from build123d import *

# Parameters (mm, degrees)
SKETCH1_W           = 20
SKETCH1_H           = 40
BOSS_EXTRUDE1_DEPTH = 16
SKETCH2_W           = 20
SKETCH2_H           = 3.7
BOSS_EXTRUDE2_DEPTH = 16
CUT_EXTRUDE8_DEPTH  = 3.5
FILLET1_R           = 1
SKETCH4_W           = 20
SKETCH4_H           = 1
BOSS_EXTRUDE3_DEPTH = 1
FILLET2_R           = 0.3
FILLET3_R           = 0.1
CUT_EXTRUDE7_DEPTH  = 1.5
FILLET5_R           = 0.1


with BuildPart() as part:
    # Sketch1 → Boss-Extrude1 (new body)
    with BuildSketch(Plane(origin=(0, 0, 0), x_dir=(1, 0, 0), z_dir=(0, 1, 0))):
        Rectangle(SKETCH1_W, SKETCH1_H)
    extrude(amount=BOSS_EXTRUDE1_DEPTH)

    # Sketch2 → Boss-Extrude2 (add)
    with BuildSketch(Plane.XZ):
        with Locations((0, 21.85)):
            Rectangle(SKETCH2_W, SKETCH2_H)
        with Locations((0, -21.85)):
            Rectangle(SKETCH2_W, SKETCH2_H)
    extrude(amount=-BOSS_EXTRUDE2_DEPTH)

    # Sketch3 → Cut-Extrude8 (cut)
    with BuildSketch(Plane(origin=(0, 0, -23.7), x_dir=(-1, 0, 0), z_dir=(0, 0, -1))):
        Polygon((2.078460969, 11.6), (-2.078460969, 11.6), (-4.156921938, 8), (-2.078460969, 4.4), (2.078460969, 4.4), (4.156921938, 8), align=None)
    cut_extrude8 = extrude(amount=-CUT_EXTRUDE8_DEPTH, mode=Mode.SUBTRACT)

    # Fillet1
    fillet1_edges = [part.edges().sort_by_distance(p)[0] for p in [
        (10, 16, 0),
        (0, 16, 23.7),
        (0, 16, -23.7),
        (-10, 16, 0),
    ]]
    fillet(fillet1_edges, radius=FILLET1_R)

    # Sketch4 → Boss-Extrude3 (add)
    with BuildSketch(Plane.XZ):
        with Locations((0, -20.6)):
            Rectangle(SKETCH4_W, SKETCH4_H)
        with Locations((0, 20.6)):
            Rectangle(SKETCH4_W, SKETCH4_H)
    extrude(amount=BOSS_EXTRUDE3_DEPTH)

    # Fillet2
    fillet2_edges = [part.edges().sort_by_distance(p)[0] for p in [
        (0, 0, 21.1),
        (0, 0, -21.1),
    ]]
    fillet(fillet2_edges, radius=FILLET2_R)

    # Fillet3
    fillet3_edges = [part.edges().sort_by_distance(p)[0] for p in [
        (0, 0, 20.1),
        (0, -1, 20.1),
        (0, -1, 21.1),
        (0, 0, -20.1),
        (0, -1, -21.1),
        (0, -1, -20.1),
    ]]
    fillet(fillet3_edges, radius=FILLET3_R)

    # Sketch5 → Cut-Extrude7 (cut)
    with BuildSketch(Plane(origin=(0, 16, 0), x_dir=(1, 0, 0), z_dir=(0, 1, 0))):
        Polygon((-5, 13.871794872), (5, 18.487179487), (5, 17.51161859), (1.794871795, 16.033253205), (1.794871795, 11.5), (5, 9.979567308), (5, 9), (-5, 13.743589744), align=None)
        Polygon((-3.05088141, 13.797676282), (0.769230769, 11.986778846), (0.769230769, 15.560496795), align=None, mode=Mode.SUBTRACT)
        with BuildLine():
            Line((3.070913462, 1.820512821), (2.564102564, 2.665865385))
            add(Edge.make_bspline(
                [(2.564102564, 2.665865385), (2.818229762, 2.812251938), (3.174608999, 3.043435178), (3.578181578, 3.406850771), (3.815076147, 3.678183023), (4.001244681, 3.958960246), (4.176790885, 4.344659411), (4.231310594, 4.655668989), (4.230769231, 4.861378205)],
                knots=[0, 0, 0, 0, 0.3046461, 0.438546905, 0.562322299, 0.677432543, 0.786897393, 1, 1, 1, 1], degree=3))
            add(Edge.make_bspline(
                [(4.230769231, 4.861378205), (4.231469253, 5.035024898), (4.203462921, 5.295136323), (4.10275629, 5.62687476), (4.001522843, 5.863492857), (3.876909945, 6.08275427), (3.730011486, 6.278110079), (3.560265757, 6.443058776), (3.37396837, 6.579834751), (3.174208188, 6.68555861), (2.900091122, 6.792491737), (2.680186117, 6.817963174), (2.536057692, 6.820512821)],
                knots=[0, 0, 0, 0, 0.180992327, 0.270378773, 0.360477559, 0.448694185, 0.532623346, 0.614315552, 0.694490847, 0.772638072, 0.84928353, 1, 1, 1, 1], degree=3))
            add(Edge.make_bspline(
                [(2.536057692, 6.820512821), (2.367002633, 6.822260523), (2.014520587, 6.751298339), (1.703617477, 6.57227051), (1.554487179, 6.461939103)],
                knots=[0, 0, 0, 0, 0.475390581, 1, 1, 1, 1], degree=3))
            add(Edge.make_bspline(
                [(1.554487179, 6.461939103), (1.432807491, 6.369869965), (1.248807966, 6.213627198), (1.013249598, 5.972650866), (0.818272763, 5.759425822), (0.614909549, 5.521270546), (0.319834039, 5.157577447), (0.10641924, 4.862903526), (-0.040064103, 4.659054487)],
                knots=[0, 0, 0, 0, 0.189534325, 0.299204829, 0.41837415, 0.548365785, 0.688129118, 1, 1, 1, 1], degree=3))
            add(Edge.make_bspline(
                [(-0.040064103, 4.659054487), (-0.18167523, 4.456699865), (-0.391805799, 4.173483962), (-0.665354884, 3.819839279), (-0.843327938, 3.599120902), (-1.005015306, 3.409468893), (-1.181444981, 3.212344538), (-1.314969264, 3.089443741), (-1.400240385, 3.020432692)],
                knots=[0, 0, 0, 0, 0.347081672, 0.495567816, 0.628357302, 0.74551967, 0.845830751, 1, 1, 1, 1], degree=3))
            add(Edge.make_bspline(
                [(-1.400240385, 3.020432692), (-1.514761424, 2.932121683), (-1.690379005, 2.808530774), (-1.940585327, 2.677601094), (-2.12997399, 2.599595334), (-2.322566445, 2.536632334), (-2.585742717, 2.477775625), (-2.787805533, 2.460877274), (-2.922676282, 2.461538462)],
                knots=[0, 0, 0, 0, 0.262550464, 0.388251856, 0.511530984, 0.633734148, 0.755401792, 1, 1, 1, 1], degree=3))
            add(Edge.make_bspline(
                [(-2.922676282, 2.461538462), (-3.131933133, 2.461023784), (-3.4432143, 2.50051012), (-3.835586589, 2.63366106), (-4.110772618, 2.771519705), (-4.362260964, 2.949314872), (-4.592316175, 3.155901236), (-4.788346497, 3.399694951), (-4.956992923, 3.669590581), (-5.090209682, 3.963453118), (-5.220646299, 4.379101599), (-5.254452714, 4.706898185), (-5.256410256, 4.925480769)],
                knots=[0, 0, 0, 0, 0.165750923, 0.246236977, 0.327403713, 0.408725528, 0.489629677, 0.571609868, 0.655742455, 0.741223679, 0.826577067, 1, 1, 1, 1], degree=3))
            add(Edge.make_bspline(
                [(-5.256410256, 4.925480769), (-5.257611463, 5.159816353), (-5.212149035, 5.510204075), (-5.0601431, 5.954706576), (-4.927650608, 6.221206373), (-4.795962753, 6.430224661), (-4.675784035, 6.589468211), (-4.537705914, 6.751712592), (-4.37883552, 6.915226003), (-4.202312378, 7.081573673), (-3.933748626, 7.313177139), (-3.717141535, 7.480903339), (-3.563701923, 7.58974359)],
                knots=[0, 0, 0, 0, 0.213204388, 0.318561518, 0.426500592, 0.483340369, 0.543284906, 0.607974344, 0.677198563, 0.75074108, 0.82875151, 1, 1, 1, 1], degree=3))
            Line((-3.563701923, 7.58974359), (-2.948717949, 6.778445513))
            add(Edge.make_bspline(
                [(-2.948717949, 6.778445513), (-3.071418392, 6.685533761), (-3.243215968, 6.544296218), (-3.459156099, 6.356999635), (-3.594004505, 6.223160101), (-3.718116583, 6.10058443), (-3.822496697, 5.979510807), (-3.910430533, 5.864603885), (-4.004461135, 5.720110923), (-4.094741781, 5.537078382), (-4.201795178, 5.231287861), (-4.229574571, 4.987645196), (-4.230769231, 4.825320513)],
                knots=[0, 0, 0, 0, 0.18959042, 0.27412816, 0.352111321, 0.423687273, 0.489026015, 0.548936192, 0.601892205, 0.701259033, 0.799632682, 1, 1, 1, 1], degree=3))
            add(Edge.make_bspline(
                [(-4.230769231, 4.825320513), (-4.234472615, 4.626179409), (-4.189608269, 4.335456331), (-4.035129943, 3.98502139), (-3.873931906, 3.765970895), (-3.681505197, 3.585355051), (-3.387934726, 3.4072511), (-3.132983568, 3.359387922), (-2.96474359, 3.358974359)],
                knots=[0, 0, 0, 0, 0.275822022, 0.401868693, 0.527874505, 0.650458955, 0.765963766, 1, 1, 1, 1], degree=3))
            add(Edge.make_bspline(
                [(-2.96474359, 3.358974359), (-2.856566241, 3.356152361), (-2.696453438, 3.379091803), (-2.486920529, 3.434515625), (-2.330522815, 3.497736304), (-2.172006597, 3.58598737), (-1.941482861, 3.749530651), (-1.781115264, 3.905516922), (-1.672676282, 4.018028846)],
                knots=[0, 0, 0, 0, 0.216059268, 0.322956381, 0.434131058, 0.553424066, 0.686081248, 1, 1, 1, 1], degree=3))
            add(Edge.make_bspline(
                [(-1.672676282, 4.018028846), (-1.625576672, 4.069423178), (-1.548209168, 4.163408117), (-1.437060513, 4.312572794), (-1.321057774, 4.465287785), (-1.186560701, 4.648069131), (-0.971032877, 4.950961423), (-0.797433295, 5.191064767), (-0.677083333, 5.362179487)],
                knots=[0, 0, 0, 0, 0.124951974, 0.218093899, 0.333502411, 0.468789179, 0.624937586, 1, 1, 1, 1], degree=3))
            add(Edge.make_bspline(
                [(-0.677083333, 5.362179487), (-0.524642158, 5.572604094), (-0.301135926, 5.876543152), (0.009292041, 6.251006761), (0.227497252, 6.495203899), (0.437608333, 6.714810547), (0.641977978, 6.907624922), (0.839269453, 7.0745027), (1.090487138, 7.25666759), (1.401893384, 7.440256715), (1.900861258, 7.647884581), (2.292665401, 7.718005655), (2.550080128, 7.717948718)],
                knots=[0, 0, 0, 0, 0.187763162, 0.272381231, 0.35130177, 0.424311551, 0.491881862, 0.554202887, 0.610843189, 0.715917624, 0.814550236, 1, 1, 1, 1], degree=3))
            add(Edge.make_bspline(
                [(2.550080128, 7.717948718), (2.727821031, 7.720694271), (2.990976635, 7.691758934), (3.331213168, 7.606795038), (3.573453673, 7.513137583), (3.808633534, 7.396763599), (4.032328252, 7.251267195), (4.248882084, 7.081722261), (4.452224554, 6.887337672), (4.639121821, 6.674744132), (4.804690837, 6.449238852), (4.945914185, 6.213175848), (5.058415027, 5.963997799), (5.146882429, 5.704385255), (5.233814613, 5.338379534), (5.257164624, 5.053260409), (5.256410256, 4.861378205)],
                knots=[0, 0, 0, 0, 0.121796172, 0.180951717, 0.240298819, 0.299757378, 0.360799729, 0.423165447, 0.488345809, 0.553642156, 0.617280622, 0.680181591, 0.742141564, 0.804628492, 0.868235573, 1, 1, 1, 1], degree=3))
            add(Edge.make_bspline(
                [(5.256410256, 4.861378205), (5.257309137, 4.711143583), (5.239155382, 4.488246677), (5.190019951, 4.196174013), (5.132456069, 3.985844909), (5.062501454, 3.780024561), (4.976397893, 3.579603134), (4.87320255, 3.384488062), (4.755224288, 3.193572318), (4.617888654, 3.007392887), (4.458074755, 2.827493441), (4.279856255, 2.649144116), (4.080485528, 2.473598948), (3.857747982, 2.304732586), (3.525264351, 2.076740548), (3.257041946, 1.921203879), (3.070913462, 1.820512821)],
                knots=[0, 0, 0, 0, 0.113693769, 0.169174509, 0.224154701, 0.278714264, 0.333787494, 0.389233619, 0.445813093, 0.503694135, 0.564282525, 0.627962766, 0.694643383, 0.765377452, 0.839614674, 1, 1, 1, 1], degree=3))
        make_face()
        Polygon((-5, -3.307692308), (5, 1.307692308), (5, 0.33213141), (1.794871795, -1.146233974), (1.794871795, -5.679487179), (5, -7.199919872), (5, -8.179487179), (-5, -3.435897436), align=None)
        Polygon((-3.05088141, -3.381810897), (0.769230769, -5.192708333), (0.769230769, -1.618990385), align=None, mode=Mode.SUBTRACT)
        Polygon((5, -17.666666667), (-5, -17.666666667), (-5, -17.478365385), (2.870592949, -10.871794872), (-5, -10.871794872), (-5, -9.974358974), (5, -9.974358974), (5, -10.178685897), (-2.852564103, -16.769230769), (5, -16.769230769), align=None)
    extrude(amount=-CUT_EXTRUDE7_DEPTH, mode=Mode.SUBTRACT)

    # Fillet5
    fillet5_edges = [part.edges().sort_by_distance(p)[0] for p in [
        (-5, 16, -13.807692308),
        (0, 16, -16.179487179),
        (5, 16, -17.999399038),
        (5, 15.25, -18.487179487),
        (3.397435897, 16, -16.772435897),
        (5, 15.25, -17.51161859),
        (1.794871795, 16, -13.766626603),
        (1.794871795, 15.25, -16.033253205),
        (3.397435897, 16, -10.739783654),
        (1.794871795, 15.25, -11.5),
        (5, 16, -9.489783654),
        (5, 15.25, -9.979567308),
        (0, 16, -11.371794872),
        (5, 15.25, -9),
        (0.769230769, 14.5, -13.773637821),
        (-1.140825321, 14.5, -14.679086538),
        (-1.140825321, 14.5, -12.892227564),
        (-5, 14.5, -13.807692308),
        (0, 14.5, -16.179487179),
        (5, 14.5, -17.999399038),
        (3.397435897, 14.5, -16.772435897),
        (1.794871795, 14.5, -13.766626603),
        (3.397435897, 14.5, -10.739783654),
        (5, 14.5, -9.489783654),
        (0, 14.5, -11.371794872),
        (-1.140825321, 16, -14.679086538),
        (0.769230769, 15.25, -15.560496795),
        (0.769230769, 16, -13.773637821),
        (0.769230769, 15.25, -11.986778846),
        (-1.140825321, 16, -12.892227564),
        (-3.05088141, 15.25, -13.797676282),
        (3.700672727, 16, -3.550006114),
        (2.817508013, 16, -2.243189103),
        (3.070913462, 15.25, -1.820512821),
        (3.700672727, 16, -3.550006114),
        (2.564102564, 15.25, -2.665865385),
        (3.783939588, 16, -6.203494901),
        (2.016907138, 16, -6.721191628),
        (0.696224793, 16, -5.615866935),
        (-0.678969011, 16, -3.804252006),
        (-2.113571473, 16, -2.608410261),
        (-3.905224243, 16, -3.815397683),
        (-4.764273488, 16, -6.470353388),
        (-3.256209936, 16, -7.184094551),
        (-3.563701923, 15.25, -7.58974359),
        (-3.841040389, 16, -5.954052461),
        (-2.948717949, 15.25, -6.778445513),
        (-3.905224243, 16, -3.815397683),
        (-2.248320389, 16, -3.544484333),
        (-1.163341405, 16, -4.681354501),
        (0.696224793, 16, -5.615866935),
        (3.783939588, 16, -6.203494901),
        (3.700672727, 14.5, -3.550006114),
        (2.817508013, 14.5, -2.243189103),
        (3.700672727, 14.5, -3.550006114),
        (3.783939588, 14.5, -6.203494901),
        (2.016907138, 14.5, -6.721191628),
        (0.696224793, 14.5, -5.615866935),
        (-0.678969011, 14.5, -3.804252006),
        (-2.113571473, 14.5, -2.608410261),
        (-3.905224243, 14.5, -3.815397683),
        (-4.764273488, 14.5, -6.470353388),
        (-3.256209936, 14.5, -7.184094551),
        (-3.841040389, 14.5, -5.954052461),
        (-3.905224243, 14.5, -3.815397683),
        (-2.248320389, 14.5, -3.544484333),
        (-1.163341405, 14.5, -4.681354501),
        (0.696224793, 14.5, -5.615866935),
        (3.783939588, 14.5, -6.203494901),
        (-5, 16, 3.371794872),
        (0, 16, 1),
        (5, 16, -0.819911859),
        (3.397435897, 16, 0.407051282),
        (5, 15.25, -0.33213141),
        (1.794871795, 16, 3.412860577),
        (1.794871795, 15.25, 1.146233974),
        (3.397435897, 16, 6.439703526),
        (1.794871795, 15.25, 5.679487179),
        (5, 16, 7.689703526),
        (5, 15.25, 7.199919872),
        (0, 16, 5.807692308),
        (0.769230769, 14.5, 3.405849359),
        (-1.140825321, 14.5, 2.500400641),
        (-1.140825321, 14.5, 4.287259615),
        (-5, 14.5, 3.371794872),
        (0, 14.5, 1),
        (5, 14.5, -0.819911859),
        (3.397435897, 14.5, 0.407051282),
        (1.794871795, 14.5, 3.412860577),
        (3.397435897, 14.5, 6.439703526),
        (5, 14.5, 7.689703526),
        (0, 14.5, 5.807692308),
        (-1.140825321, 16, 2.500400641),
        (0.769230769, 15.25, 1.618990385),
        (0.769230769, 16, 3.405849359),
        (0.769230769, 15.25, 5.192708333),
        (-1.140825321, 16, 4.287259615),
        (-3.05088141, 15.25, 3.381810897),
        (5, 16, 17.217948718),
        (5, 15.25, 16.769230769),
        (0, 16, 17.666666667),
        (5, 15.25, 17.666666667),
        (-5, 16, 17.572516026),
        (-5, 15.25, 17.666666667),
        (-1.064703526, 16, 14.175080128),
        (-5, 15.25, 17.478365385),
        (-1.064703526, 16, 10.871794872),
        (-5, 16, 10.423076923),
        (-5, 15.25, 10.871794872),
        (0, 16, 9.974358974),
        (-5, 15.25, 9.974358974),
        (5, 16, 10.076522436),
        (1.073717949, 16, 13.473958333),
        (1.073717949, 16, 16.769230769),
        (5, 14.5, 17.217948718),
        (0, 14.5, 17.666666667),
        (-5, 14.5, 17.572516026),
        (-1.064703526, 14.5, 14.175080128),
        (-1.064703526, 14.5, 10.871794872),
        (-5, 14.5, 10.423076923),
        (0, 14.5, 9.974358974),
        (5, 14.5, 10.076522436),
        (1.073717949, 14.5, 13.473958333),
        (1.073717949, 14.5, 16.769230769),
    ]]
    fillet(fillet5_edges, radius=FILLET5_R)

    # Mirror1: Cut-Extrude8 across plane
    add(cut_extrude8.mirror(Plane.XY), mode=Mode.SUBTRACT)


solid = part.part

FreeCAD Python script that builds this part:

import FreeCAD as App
import Part
import Sketcher

V = App.Vector
Q = App.Units.Quantity


def edges_at(feature, points):
    """Names of the edges that pass closest to the given points."""
    edges = feature.Shape.Edges
    near = lambda p: min(range(len(edges)), key=lambda i: edges[i].distToShape(Part.Vertex(*p))[0])
    return sorted({f"Edge{near(p) + 1}" for p in points})


def add_polygon(sketch, points):
    """Adds a closed chain of lines whose ends are joined by coincident constraints."""
    first, n = sketch.GeometryCount, len(points)
    for a, b in zip(points, points[1:] + points[:1]):
        sketch.addGeometry(Part.LineSegment(App.Vector(*a, 0), App.Vector(*b, 0)), False)
    for i in range(n):
        sketch.addConstraint(Sketcher.Constraint("Coincident", first + i, 2, first + (i + 1) % n, 1))

doc = App.newDocument("Part")
body = doc.addObject("PartDesign::Body", "Body")

# Sketch on XZ plane
sketch1 = body.newObject("Sketcher::SketchObject", "Sketch")
sketch1.AttachmentSupport = (doc.getObject("XZ_Plane"), [""])
sketch1.MapMode = "FlatFace"
add_polygon(sketch1, [(-10, -20), (-10, 20), (10, 20), (10, -20)])  # lines 0-3
sketch1.addConstraint([
    Sketcher.Constraint("Vertical", 0),
    Sketcher.Constraint("Horizontal", 1),
    Sketcher.Constraint("Vertical", 2),
    Sketcher.Constraint("Horizontal", 3),
    Sketcher.Constraint("Symmetric", 0, 2, 2, 2, -1, 1),
    Sketcher.Constraint("DistanceX", 1, 1, 1, 2, Q("20 mm")),
    Sketcher.Constraint("DistanceY", 0, 1, 0, 2, Q("40 mm")),
])
pad1 = body.newObject("PartDesign::Pad", "Pad")
pad1.Profile = sketch1
pad1.Length = 16
pad1.Reversed = True

# Sketch on XZ plane
sketch2 = body.newObject("Sketcher::SketchObject", "Sketch001")
sketch2.AttachmentSupport = (doc.getObject("XZ_Plane"), [""])
sketch2.MapMode = "FlatFace"
add_polygon(sketch2, [(-10, 23.7), (-10, 20), (10, 20), (10, 23.7)])  # lines 0-3
add_polygon(sketch2, [(-10, -20), (-10, -23.7), (10, -23.7), (10, -20)])  # lines 4-7
sketch2.addConstraint([
    Sketcher.Constraint("Vertical", 0),
    Sketcher.Constraint("Horizontal", 1),
    Sketcher.Constraint("Vertical", 2),
    Sketcher.Constraint("Horizontal", 3),
    Sketcher.Constraint("Vertical", 4),
    Sketcher.Constraint("Horizontal", 5),
    Sketcher.Constraint("Vertical", 6),
    Sketcher.Constraint("Horizontal", 7),
    Sketcher.Constraint("Symmetric", 2, 2, 4, 2, -1, 1),
    Sketcher.Constraint("Symmetric", 0, 2, 6, 2, -1, 1),
    Sketcher.Constraint("Vertical", 3, 2, 4, 2),
    Sketcher.Constraint("DistanceX", 1, 1, 1, 2, Q("20 mm")),
    Sketcher.Constraint("DistanceY", 0, 2, 0, 1, Q("3.7 mm")),
    Sketcher.Constraint("DistanceY", -1, 1, 0, 2, Q("20 mm")),
])
pad2 = body.newObject("PartDesign::Pad", "Pad001")
pad2.Profile = sketch2
pad2.Length = 16
pad2.Reversed = True

# Sketch on XY plane
sketch3 = body.newObject("Sketcher::SketchObject", "Sketch002")
sketch3.AttachmentSupport = (doc.getObject("XY_Plane"), [""])
sketch3.MapMode = "FlatFace"
sketch3.AttachmentOffset = App.Placement(V(0, 0, -23.7), App.Rotation())
add_polygon(sketch3, [(-2.1, 11.6), (2.1, 11.6), (4.2, 8), (2.1, 4.4), (-2.1, 4.4), (-4.2, 8)])  # lines 0-5
sketch3.addConstraint([
    Sketcher.Constraint("Horizontal", 0),
    Sketcher.Constraint("Horizontal", 3),
    Sketcher.Constraint("Symmetric", 1, 2, 4, 2, -2),
    Sketcher.Constraint("Parallel", 1, 4),
    Sketcher.Constraint("Parallel", 2, 5),
    Sketcher.Constraint("Vertical", 0, 2, 2, 2),
    Sketcher.Constraint("Vertical", 3, 2, 5, 2),
    Sketcher.Constraint("Angle", 1, Q("-60 deg")),
    Sketcher.Constraint("DistanceY", -1, 1, 1, 2, Q("8 mm")),
    Sketcher.Constraint("DistanceY", -1, 1, 0, 2, Q("11.6 mm")),
    Sketcher.Constraint("DistanceX", 0, 1, 0, 2, Q("4.156922 mm")),
])
pocket1 = body.newObject("PartDesign::Pocket", "Pocket")
pocket1.Profile = sketch3
pocket1.Length = 3.5
pocket1.Reversed = True
doc.recompute()

fillet = body.newObject("PartDesign::Fillet", "Fillet")
fillet.Base = (pocket1, edges_at(pocket1, [
    (10, 16, 0),
    (0, 16, 23.7),
    (0, 16, -23.7),
    (-10, 16, 0),
]))
fillet.Radius = 1

# Sketch on XZ plane
sketch4 = body.newObject("Sketcher::SketchObject", "Sketch003")
sketch4.AttachmentSupport = (doc.getObject("XZ_Plane"), [""])
sketch4.MapMode = "FlatFace"
add_polygon(sketch4, [(-10, -20.1), (-10, -21.1), (10, -21.1), (10, -20.1)])  # lines 0-3
add_polygon(sketch4, [(-10, 21.1), (-10, 20.1), (10, 20.1), (10, 21.1)])  # lines 4-7
sketch4.addConstraint([
    Sketcher.Constraint("Vertical", 0),
    Sketcher.Constraint("Horizontal", 1),
    Sketcher.Constraint("Vertical", 2),
    Sketcher.Constraint("Horizontal", 3),
    Sketcher.Constraint("Vertical", 4),
    Sketcher.Constraint("Horizontal", 5),
    Sketcher.Constraint("Vertical", 6),
    Sketcher.Constraint("Horizontal", 7),
    Sketcher.Constraint("Symmetric", 2, 2, 4, 2, -1, 1),
    Sketcher.Constraint("Symmetric", 0, 2, 6, 2, -1, 1),
    Sketcher.Constraint("Vertical", 3, 2, 4, 2),
    Sketcher.Constraint("DistanceX", 1, 1, 1, 2, Q("20 mm")),
    Sketcher.Constraint("DistanceY", 0, 2, 0, 1, Q("1 mm")),
    Sketcher.Constraint("DistanceY", 0, 2, -1, 1, Q("21.1 mm")),
])
pad3 = body.newObject("PartDesign::Pad", "Pad002")
pad3.Profile = sketch4
pad3.Length = 1
doc.recompute()

fillet2 = body.newObject("PartDesign::Fillet", "Fillet001")
fillet2.Base = (pad3, edges_at(pad3, [(0, 0, 21.1), (0, 0, -21.1)]))
fillet2.Radius = 0.3
doc.recompute()

fillet3 = body.newObject("PartDesign::Fillet", "Fillet002")
fillet3.Base = (fillet2, edges_at(fillet2, [
    (0, 0, 20.1),
    (0, -1, 20.1),
    (0, -1, 21.1),
    (0, 0, -20.1),
    (0, -1, -21.1),
    (0, -1, -20.1),
]))
fillet3.Radius = 0.1

# Sketch on XZ plane
sketch5 = body.newObject("Sketcher::SketchObject", "Sketch004")
sketch5.AttachmentSupport = (doc.getObject("XZ_Plane"), [""])
sketch5.MapMode = "FlatFace"
sketch5.AttachmentOffset = App.Placement(V(0, 0, -16), App.Rotation())
add_polygon(sketch5, [(5, -18.487179), (-5, -13.871795), (-5, -13.74359), (5, -9), (5, -9.979567), (1.794872, -11.5), (1.794872, -16.033253), (5, -17.511619)])  # lines 0-7
add_polygon(sketch5, [(-3.050881, -13.797676), (0.769231, -15.560497), (0.769231, -11.986779)])  # lines 8-10
sketch5.addGeometry(Part.LineSegment(V(2.564103, -2.665865, 0), V(3.070913, -1.820513, 0)), False)  # 11
sketch5.addGeometry(Part.BSplineCurve([V(5.25641, -4.861378, 0), V(5.257309, -4.711144, 0), V(5.239155, -4.488247, 0), V(5.19002, -4.196174, 0), V(5.132456, -3.985845, 0), V(5.062501, -3.780025, 0), V(4.976398, -3.579603, 0), V(4.873203, -3.384488, 0), V(4.755224, -3.193572, 0), V(4.617889, -3.007393, 0), V(4.458075, -2.827493, 0), V(4.279856, -2.649144, 0), V(4.080486, -2.473599, 0), V(3.857748, -2.304733, 0), V(3.525264, -2.076741, 0), V(3.257042, -1.921204, 0), V(3.070913, -1.820513, 0)], [4, 1, 1, 1, 1, 1, 1, 1, 1, 1, 1, 1, 1, 1, 4], [0, 0.113693769, 0.169174509, 0.224154701, 0.278714264, 0.333787494, 0.389233619, 0.445813093, 0.503694135, 0.564282525, 0.627962766, 0.694643383, 0.765377452, 0.839614674, 1], False, 3, [1, 1, 1, 1, 1, 1, 1, 1, 1, 1, 1, 1, 1, 1, 1, 1, 1], False), False)  # 12
sketch5.addGeometry(Part.BSplineCurve([V(2.55008, -7.717949, 0), V(2.727821, -7.720694, 0), V(2.990977, -7.691759, 0), V(3.331213, -7.606795, 0), V(3.573454, -7.513138, 0), V(3.808634, -7.396764, 0), V(4.032328, -7.251267, 0), V(4.248882, -7.081722, 0), V(4.452225, -6.887338, 0), V(4.639122, -6.674744, 0), V(4.804691, -6.449239, 0), V(4.945914, -6.213176, 0), V(5.058415, -5.963998, 0), V(5.146882, -5.704385, 0), V(5.233815, -5.33838, 0), V(5.257165, -5.05326, 0), V(5.25641, -4.861378, 0)], [4, 1, 1, 1, 1, 1, 1, 1, 1, 1, 1, 1, 1, 1, 4], [0, 0.121796172, 0.180951717, 0.240298819, 0.299757378, 0.360799729, 0.423165447, 0.488345809, 0.553642156, 0.617280622, 0.680181591, 0.742141564, 0.804628492, 0.868235573, 1], False, 3, [1, 1, 1, 1, 1, 1, 1, 1, 1, 1, 1, 1, 1, 1, 1, 1, 1], False), False)  # 13
sketch5.addGeometry(Part.BSplineCurve([V(-0.677083, -5.362179, 0), V(-0.524642, -5.572604, 0), V(-0.301136, -5.876543, 0), V(0.009292, -6.251007, 0), V(0.227497, -6.495204, 0), V(0.437608, -6.714811, 0), V(0.641978, -6.907625, 0), V(0.839269, -7.074503, 0), V(1.090487, -7.256668, 0), V(1.401893, -7.440257, 0), V(1.900861, -7.647885, 0), V(2.292665, -7.718006, 0), V(2.55008, -7.717949, 0)], [4, 1, 1, 1, 1, 1, 1, 1, 1, 1, 4], [0, 0.187763162, 0.272381231, 0.35130177, 0.424311551, 0.491881862, 0.554202887, 0.610843189, 0.715917624, 0.814550236, 1], False, 3, [1, 1, 1, 1, 1, 1, 1, 1, 1, 1, 1, 1, 1], False), False)  # 14
sketch5.addGeometry(Part.BSplineCurve([V(-1.672676, -4.018029, 0), V(-1.625577, -4.069423, 0), V(-1.548209, -4.163408, 0), V(-1.437061, -4.312573, 0), V(-1.321058, -4.465288, 0), V(-1.186561, -4.648069, 0), V(-0.971033, -4.950961, 0), V(-0.797433, -5.191065, 0), V(-0.677083, -5.362179, 0)], [4, 1, 1, 1, 1, 1, 4], [0, 0.124951974, 0.218093899, 0.333502411, 0.468789179, 0.624937586, 1], False, 3, [1, 1, 1, 1, 1, 1, 1, 1, 1], False), False)  # 15
sketch5.addGeometry(Part.BSplineCurve([V(-2.964744, -3.358974, 0), V(-2.856566, -3.356152, 0), V(-2.696453, -3.379092, 0), V(-2.486921, -3.434516, 0), V(-2.330523, -3.497736, 0), V(-2.172007, -3.585987, 0), V(-1.941483, -3.749531, 0), V(-1.781115, -3.905517, 0), V(-1.672676, -4.018029, 0)], [4, 1, 1, 1, 1, 1, 4], [0, 0.216059268, 0.322956381, 0.434131058, 0.553424066, 0.686081248, 1], False, 3, [1, 1, 1, 1, 1, 1, 1, 1, 1], False), False)  # 16
sketch5.addGeometry(Part.BSplineCurve([V(-4.230769, -4.825321, 0), V(-4.234473, -4.626179, 0), V(-4.189608, -4.335456, 0), V(-4.03513, -3.985021, 0), V(-3.873932, -3.765971, 0), V(-3.681505, -3.585355, 0), V(-3.387935, -3.407251, 0), V(-3.132984, -3.359388, 0), V(-2.964744, -3.358974, 0)], [4, 1, 1, 1, 1, 1, 4], [0, 0.275822022, 0.401868693, 0.527874505, 0.650458955, 0.765963766, 1], False, 3, [1, 1, 1, 1, 1, 1, 1, 1, 1], False), False)  # 17
sketch5.addGeometry(Part.BSplineCurve([V(-2.948718, -6.778446, 0), V(-3.071418, -6.685534, 0), V(-3.243216, -6.544296, 0), V(-3.459156, -6.357, 0), V(-3.594005, -6.22316, 0), V(-3.718117, -6.100584, 0), V(-3.822497, -5.979511, 0), V(-3.910431, -5.864604, 0), V(-4.004461, -5.720111, 0), V(-4.094742, -5.537078, 0), V(-4.201795, -5.231288, 0), V(-4.229575, -4.987645, 0), V(-4.230769, -4.825321, 0)], [4, 1, 1, 1, 1, 1, 1, 1, 1, 1, 4], [0, 0.18959042, 0.27412816, 0.352111321, 0.423687273, 0.489026015, 0.548936192, 0.601892205, 0.701259033, 0.799632682, 1], False, 3, [1, 1, 1, 1, 1, 1, 1, 1, 1, 1, 1, 1, 1], False), False)  # 18
sketch5.addGeometry(Part.LineSegment(V(-2.948718, -6.778446, 0), V(-3.563702, -7.589744, 0)), False)  # 19
sketch5.addGeometry(Part.BSplineCurve([V(-5.25641, -4.925481, 0), V(-5.257611, -5.159816, 0), V(-5.212149, -5.510204, 0), V(-5.060143, -5.954707, 0), V(-4.927651, -6.221206, 0), V(-4.795963, -6.430225, 0), V(-4.675784, -6.589468, 0), V(-4.537706, -6.751713, 0), V(-4.378836, -6.915226, 0), V(-4.202312, -7.081574, 0), V(-3.933749, -7.313177, 0), V(-3.717142, -7.480903, 0), V(-3.563702, -7.589744, 0)], [4, 1, 1, 1, 1, 1, 1, 1, 1, 1, 4], [0, 0.213204388, 0.318561518, 0.426500592, 0.483340369, 0.543284906, 0.607974344, 0.677198563, 0.75074108, 0.82875151, 1], False, 3, [1, 1, 1, 1, 1, 1, 1, 1, 1, 1, 1, 1, 1], False), False)  # 20
sketch5.addGeometry(Part.BSplineCurve([V(-2.922676, -2.461538, 0), V(-3.131933, -2.461024, 0), V(-3.443214, -2.50051, 0), V(-3.835587, -2.633661, 0), V(-4.110773, -2.77152, 0), V(-4.362261, -2.949315, 0), V(-4.592316, -3.155901, 0), V(-4.788346, -3.399695, 0), V(-4.956993, -3.669591, 0), V(-5.09021, -3.963453, 0), V(-5.220646, -4.379102, 0), V(-5.254453, -4.706898, 0), V(-5.25641, -4.925481, 0)], [4, 1, 1, 1, 1, 1, 1, 1, 1, 1, 4], [0, 0.165750923, 0.246236977, 0.327403713, 0.408725528, 0.489629677, 0.571609868, 0.655742455, 0.741223679, 0.826577067, 1], False, 3, [1, 1, 1, 1, 1, 1, 1, 1, 1, 1, 1, 1, 1], False), False)  # 21
sketch5.addGeometry(Part.BSplineCurve([V(-1.40024, -3.020433, 0), V(-1.514761, -2.932122, 0), V(-1.690379, -2.808531, 0), V(-1.940585, -2.677601, 0), V(-2.129974, -2.599595, 0), V(-2.322566, -2.536632, 0), V(-2.585743, -2.477776, 0), V(-2.787806, -2.460877, 0), V(-2.922676, -2.461538, 0)], [4, 1, 1, 1, 1, 1, 4], [0, 0.262550464, 0.388251856, 0.511530984, 0.633734148, 0.755401792, 1], False, 3, [1, 1, 1, 1, 1, 1, 1, 1, 1], False), False)  # 22
sketch5.addGeometry(Part.BSplineCurve([V(-0.040064, -4.659054, 0), V(-0.181675, -4.4567, 0), V(-0.391806, -4.173484, 0), V(-0.665355, -3.819839, 0), V(-0.843328, -3.599121, 0), V(-1.005015, -3.409469, 0), V(-1.181445, -3.212345, 0), V(-1.314969, -3.089444, 0), V(-1.40024, -3.020433, 0)], [4, 1, 1, 1, 1, 1, 4], [0, 0.347081672, 0.495567816, 0.628357302, 0.74551967, 0.845830751, 1], False, 3, [1, 1, 1, 1, 1, 1, 1, 1, 1], False), False)  # 23
sketch5.addGeometry(Part.BSplineCurve([V(1.554487, -6.461939, 0), V(1.432807, -6.36987, 0), V(1.248808, -6.213627, 0), V(1.01325, -5.972651, 0), V(0.818273, -5.759426, 0), V(0.61491, -5.521271, 0), V(0.319834, -5.157577, 0), V(0.106419, -4.862904, 0), V(-0.040064, -4.659054, 0)], [4, 1, 1, 1, 1, 1, 4], [0, 0.189534325, 0.299204829, 0.41837415, 0.548365785, 0.688129118, 1], False, 3, [1, 1, 1, 1, 1, 1, 1, 1, 1], False), False)  # 24
sketch5.addGeometry(Part.BSplineCurve([V(2.536058, -6.820513, 0), V(2.367003, -6.822261, 0), V(2.014521, -6.751298, 0), V(1.703617, -6.572271, 0), V(1.554487, -6.461939, 0)], [4, 1, 4], [0, 0.475390581, 1], False, 3, [1, 1, 1, 1, 1], False), False)  # 25
sketch5.addGeometry(Part.BSplineCurve([V(4.230769, -4.861378, 0), V(4.231469, -5.035025, 0), V(4.203463, -5.295136, 0), V(4.102756, -5.626875, 0), V(4.001523, -5.863493, 0), V(3.87691, -6.082754, 0), V(3.730011, -6.27811, 0), V(3.560266, -6.443059, 0), V(3.373968, -6.579835, 0), V(3.174208, -6.685559, 0), V(2.900091, -6.792492, 0), V(2.680186, -6.817963, 0), V(2.536058, -6.820513, 0)], [4, 1, 1, 1, 1, 1, 1, 1, 1, 1, 4], [0, 0.180992327, 0.270378773, 0.360477559, 0.448694185, 0.532623346, 0.614315552, 0.694490847, 0.772638072, 0.84928353, 1], False, 3, [1, 1, 1, 1, 1, 1, 1, 1, 1, 1, 1, 1, 1], False), False)  # 26
sketch5.addGeometry(Part.BSplineCurve([V(2.564103, -2.665865, 0), V(2.81823, -2.812252, 0), V(3.174609, -3.043435, 0), V(3.578182, -3.406851, 0), V(3.815076, -3.678183, 0), V(4.001245, -3.95896, 0), V(4.176791, -4.344659, 0), V(4.231311, -4.655669, 0), V(4.230769, -4.861378, 0)], [4, 1, 1, 1, 1, 1, 4], [0, 0.3046461, 0.438546905, 0.562322299, 0.677432543, 0.786897393, 1], False, 3, [1, 1, 1, 1, 1, 1, 1, 1, 1], False), False)  # 27
add_polygon(sketch5, [(5, -1.307692), (-5, 3.307692), (-5, 3.435897), (5, 8.179487), (5, 7.19992), (1.794872, 5.679487), (1.794872, 1.146234), (5, -0.332131)])  # lines 28-35
add_polygon(sketch5, [(-3.050881, 3.381811), (0.769231, 1.61899), (0.769231, 5.192708)])  # lines 36-38
add_polygon(sketch5, [(-5, 17.666667), (5, 17.666667), (5, 16.769231), (-2.852564, 16.769231), (5, 10.178686), (5, 9.974359), (-5, 9.974359), (-5, 10.871795), (2.870593, 10.871795), (-5, 17.478365)])  # lines 39-48
sketch5.addConstraint([
    Sketcher.Constraint("Block", 12),
    Sketcher.Constraint("Block", 13),
    Sketcher.Constraint("Block", 14),
    Sketcher.Constraint("Block", 15),
    Sketcher.Constraint("Block", 16),
    Sketcher.Constraint("Block", 17),
    Sketcher.Constraint("Block", 18),
    Sketcher.Constraint("Block", 20),
    Sketcher.Constraint("Block", 21),
    Sketcher.Constraint("Block", 22),
    Sketcher.Constraint("Block", 23),
    Sketcher.Constraint("Block", 24),
    Sketcher.Constraint("Block", 25),
    Sketcher.Constraint("Block", 26),
    Sketcher.Constraint("Block", 27),
    Sketcher.Constraint("Coincident", 11, 2, 12, 2),
    Sketcher.Constraint("Coincident", 18, 1, 19, 1),
    Sketcher.Constraint("Coincident", 19, 2, 20, 2),
    Sketcher.Constraint("Coincident", 27, 1, 11, 1),
    Sketcher.Constraint("Vertical", 1),
    Sketcher.Constraint("Vertical", 3),
    Sketcher.Constraint("Vertical", 5),
    Sketcher.Constraint("Vertical", 7),
    Sketcher.Constraint("Vertical", 9),
    Sketcher.Constraint("Vertical", 29),
    Sketcher.Constraint("Vertical", 31),
    Sketcher.Constraint("Vertical", 33),
    Sketcher.Constraint("Vertical", 35),
    Sketcher.Constraint("Vertical", 37),
    Sketcher.Constraint("Horizontal", 39),
    Sketcher.Constraint("Vertical", 40),
    Sketcher.Constraint("Horizontal", 41),
    Sketcher.Constraint("Vertical", 43),
    Sketcher.Constraint("Horizontal", 44),
    Sketcher.Constraint("Vertical", 45),
    Sketcher.Constraint("Horizontal", 46),
    Sketcher.Constraint("Vertical", 48),
    Sketcher.Constraint("Parallel", 0, 28),
    Sketcher.Constraint("Parallel", 2, 30),
    Sketcher.Constraint("Parallel", 4, 32),
    Sketcher.Constraint("Parallel", 6, 34),
    Sketcher.Constraint("Parallel", 8, 36),
    Sketcher.Constraint("Parallel", 10, 38),
    Sketcher.Constraint("Vertical", 3, 2, 6, 2),
    Sketcher.Constraint("Vertical", 1, 2, 28, 2),
    Sketcher.Constraint("Vertical", 7, 2, 30, 2),
    Sketcher.Constraint("Vertical", 5, 2, 32, 2),
    Sketcher.Constraint("Vertical", 31, 2, 34, 2),
    Sketcher.Constraint("Vertical", 9, 2, 36, 2),
    Sketcher.Constraint("Vertical", 10, 2, 38, 2),
    Sketcher.Constraint("Vertical", 35, 2, 39, 2),
    Sketcher.Constraint("Vertical", 40, 2, 42, 2),
    Sketcher.Constraint("Vertical", 29, 2, 44, 2),
    Sketcher.Constraint("Vertical", 45, 2, 47, 2),
    Sketcher.Constraint("Equal", 1, 29),
    Sketcher.Constraint("Equal", 3, 31),
    Sketcher.Constraint("Equal", 5, 33),
    Sketcher.Constraint("Equal", 40, 45),
    Sketcher.Constraint("DistanceX", 39, 1, 39, 2, Q("10 mm")),
    Sketcher.Constraint("DistanceX", 0, 2, -1, 1, Q("5 mm")),
    Sketcher.Constraint("DistanceY", 2, 2, -1, 1, Q("9 mm")),
    Sketcher.Constraint("DistanceY", 11, 2, 30, 2, Q("10 mm")),
    Sketcher.Constraint("DistanceY", 4, 2, -1, 1, Q("11.5 mm")),
    Sketcher.Constraint("DistanceY", 48, 1, 48, 2, Q("0.188301 mm")),
    Sketcher.Constraint("Distance", 10, Q("4.227601 mm")),
    Sketcher.Constraint("DistanceY", 7, 2, 7, 1, Q("0.975561 mm")),
    Sketcher.Constraint("DistanceY", 8, 2, 0, 2, Q("1.688702 mm")),
    Sketcher.Constraint("DistanceY", 30, 2, 42, 2, Q("1.999199 mm")),
    Sketcher.Constraint("Distance", 0, Q("11.013709 mm")),
    Sketcher.Constraint("Distance", 8, Q("4.207231 mm")),
    Sketcher.Constraint("DistanceX", 41, 2, 41, 1, Q("7.852564 mm")),
    Sketcher.Constraint("DistanceX", 46, 1, 46, 2, Q("7.870593 mm")),
    Sketcher.Constraint("DistanceY", 1, 1, 1, 2, Q("0.128205 mm")),
    Sketcher.Constraint("DistanceY", 3, 2, 3, 1, Q("0.979567 mm")),
    Sketcher.Constraint("DistanceY", 5, 2, 5, 1, Q("4.533253 mm")),
    Sketcher.Constraint("DistanceY", 9, 1, 9, 2, Q("3.573718 mm")),
    Sketcher.Constraint("DistanceY", 40, 2, 40, 1, Q("0.897436 mm")),
    Sketcher.Constraint("DistanceY", 43, 2, 43, 1, Q("0.204327 mm")),
    Sketcher.Constraint("DistanceY", 1, 2, -1, 1, Q("13.74359 mm")),
    Sketcher.Constraint("DistanceX", -1, 1, 4, 2, Q("1.794872 mm")),
    Sketcher.Constraint("DistanceX", -1, 1, 8, 2, Q("0.769231 mm")),
    Sketcher.Constraint("DistanceY", -1, 1, 36, 2, Q("1.61899 mm")),
    Sketcher.Constraint("DistanceY", -1, 1, 40, 2, Q("16.769231 mm")),
])
pocket2 = body.newObject("PartDesign::Pocket", "Pocket001")
pocket2.Profile = sketch5
pocket2.Length = 1.5
pocket2.Reversed = True
doc.recompute()

fillet4 = body.newObject("PartDesign::Fillet", "Fillet003")
fillet4.Base = (pocket2, edges_at(pocket2, [
    (-5, 16, -13.808),
    (0, 16, -16.179),
    (5, 16, -17.999),
    (5, 15.25, -18.487),
    (3.397, 16, -16.772),
    (5, 15.25, -17.512),
    (1.795, 16, -13.767),
    (1.795, 15.25, -16.033),
    (3.397, 16, -10.74),
    (1.795, 15.25, -11.5),
    (5, 16, -9.49),
    (5, 15.25, -9.98),
    (0, 16, -11.372),
    (5, 15.25, -9),
    (0.769, 14.5, -13.774),
    (-1.141, 14.5, -14.679),
    (-1.141, 14.5, -12.892),
    (-5, 14.5, -13.808),
    (0, 14.5, -16.179),
    (5, 14.5, -17.999),
    (3.397, 14.5, -16.772),
    (1.795, 14.5, -13.767),
    (3.397, 14.5, -10.74),
    (5, 14.5, -9.49),
    (0, 14.5, -11.372),
    (-1.141, 16, -14.679),
    (0.769, 15.25, -15.56),
    (0.769, 16, -13.774),
    (0.769, 15.25, -11.987),
    (-1.141, 16, -12.892),
    (-3.051, 15.25, -13.798),
    (3.701, 16, -3.55),
    (2.818, 16, -2.243),
    (3.071, 15.25, -1.821),
    (3.701, 16, -3.55),
    (2.564, 15.25, -2.666),
    (3.784, 16, -6.203),
    (2.017, 16, -6.721),
    (0.696, 16, -5.616),
    (-0.679, 16, -3.804),
    (-2.114, 16, -2.608),
    (-3.905, 16, -3.815),
    (-4.764, 16, -6.47),
    (-3.256, 16, -7.184),
    (-3.564, 15.25, -7.59),
    (-3.841, 16, -5.954),
    (-2.949, 15.25, -6.778),
    (-3.905, 16, -3.815),
    (-2.248, 16, -3.544),
    (-1.163, 16, -4.681),
    (0.696, 16, -5.616),
    (3.784, 16, -6.203),
    (3.701, 14.5, -3.55),
    (2.818, 14.5, -2.243),
    (3.701, 14.5, -3.55),
    (3.784, 14.5, -6.203),
    (2.017, 14.5, -6.721),
    (0.696, 14.5, -5.616),
    (-0.679, 14.5, -3.804),
    (-2.114, 14.5, -2.608),
    (-3.905, 14.5, -3.815),
    (-4.764, 14.5, -6.47),
    (-3.256, 14.5, -7.184),
    (-3.841, 14.5, -5.954),
    (-3.905, 14.5, -3.815),
    (-2.248, 14.5, -3.544),
    (-1.163, 14.5, -4.681),
    (0.696, 14.5, -5.616),
    (3.784, 14.5, -6.203),
    (-5, 16, 3.372),
    (0, 16, 1),
    (5, 16, -0.82),
    (3.397, 16, 0.407),
    (5, 15.25, -0.332),
    (1.795, 16, 3.413),
    (1.795, 15.25, 1.146),
    (3.397, 16, 6.44),
    (1.795, 15.25, 5.679),
    (5, 16, 7.69),
    (5, 15.25, 7.2),
    (0, 16, 5.808),
    (0.769, 14.5, 3.406),
    (-1.141, 14.5, 2.5),
    (-1.141, 14.5, 4.287),
    (-5, 14.5, 3.372),
    (0, 14.5, 1),
    (5, 14.5, -0.82),
    (3.397, 14.5, 0.407),
    (1.795, 14.5, 3.413),
    (3.397, 14.5, 6.44),
    (5, 14.5, 7.69),
    (0, 14.5, 5.808),
    (-1.141, 16, 2.5),
    (0.769, 15.25, 1.619),
    (0.769, 16, 3.406),
    (0.769, 15.25, 5.193),
    (-1.141, 16, 4.287),
    (-3.051, 15.25, 3.382),
    (5, 16, 17.218),
    (5, 15.25, 16.769),
    (0, 16, 17.667),
    (5, 15.25, 17.667),
    (-5, 16, 17.573),
    (-5, 15.25, 17.667),
    (-1.065, 16, 14.175),
    (-5, 15.25, 17.478),
    (-1.065, 16, 10.872),
    (-5, 16, 10.423),
    (-5, 15.25, 10.872),
    (0, 16, 9.974),
    (-5, 15.25, 9.974),
    (5, 16, 10.077),
    (1.074, 16, 13.474),
    (1.074, 16, 16.769),
    (5, 14.5, 17.218),
    (0, 14.5, 17.667),
    (-5, 14.5, 17.573),
    (-1.065, 14.5, 14.175),
    (-1.065, 14.5, 10.872),
    (-5, 14.5, 10.423),
    (0, 14.5, 9.974),
    (5, 14.5, 10.077),
    (1.074, 14.5, 13.474),
    (1.074, 14.5, 16.769),
]))
fillet4.Radius = 0.1
doc.recompute()

mirrored = body.newObject("PartDesign::Mirrored", "Mirrored")
mirrored.Originals = [pocket1]
mirrored.MirrorPlane = (doc.getObject("XY_Plane"), [""])
body.Tip = mirrored

doc.recompute()
